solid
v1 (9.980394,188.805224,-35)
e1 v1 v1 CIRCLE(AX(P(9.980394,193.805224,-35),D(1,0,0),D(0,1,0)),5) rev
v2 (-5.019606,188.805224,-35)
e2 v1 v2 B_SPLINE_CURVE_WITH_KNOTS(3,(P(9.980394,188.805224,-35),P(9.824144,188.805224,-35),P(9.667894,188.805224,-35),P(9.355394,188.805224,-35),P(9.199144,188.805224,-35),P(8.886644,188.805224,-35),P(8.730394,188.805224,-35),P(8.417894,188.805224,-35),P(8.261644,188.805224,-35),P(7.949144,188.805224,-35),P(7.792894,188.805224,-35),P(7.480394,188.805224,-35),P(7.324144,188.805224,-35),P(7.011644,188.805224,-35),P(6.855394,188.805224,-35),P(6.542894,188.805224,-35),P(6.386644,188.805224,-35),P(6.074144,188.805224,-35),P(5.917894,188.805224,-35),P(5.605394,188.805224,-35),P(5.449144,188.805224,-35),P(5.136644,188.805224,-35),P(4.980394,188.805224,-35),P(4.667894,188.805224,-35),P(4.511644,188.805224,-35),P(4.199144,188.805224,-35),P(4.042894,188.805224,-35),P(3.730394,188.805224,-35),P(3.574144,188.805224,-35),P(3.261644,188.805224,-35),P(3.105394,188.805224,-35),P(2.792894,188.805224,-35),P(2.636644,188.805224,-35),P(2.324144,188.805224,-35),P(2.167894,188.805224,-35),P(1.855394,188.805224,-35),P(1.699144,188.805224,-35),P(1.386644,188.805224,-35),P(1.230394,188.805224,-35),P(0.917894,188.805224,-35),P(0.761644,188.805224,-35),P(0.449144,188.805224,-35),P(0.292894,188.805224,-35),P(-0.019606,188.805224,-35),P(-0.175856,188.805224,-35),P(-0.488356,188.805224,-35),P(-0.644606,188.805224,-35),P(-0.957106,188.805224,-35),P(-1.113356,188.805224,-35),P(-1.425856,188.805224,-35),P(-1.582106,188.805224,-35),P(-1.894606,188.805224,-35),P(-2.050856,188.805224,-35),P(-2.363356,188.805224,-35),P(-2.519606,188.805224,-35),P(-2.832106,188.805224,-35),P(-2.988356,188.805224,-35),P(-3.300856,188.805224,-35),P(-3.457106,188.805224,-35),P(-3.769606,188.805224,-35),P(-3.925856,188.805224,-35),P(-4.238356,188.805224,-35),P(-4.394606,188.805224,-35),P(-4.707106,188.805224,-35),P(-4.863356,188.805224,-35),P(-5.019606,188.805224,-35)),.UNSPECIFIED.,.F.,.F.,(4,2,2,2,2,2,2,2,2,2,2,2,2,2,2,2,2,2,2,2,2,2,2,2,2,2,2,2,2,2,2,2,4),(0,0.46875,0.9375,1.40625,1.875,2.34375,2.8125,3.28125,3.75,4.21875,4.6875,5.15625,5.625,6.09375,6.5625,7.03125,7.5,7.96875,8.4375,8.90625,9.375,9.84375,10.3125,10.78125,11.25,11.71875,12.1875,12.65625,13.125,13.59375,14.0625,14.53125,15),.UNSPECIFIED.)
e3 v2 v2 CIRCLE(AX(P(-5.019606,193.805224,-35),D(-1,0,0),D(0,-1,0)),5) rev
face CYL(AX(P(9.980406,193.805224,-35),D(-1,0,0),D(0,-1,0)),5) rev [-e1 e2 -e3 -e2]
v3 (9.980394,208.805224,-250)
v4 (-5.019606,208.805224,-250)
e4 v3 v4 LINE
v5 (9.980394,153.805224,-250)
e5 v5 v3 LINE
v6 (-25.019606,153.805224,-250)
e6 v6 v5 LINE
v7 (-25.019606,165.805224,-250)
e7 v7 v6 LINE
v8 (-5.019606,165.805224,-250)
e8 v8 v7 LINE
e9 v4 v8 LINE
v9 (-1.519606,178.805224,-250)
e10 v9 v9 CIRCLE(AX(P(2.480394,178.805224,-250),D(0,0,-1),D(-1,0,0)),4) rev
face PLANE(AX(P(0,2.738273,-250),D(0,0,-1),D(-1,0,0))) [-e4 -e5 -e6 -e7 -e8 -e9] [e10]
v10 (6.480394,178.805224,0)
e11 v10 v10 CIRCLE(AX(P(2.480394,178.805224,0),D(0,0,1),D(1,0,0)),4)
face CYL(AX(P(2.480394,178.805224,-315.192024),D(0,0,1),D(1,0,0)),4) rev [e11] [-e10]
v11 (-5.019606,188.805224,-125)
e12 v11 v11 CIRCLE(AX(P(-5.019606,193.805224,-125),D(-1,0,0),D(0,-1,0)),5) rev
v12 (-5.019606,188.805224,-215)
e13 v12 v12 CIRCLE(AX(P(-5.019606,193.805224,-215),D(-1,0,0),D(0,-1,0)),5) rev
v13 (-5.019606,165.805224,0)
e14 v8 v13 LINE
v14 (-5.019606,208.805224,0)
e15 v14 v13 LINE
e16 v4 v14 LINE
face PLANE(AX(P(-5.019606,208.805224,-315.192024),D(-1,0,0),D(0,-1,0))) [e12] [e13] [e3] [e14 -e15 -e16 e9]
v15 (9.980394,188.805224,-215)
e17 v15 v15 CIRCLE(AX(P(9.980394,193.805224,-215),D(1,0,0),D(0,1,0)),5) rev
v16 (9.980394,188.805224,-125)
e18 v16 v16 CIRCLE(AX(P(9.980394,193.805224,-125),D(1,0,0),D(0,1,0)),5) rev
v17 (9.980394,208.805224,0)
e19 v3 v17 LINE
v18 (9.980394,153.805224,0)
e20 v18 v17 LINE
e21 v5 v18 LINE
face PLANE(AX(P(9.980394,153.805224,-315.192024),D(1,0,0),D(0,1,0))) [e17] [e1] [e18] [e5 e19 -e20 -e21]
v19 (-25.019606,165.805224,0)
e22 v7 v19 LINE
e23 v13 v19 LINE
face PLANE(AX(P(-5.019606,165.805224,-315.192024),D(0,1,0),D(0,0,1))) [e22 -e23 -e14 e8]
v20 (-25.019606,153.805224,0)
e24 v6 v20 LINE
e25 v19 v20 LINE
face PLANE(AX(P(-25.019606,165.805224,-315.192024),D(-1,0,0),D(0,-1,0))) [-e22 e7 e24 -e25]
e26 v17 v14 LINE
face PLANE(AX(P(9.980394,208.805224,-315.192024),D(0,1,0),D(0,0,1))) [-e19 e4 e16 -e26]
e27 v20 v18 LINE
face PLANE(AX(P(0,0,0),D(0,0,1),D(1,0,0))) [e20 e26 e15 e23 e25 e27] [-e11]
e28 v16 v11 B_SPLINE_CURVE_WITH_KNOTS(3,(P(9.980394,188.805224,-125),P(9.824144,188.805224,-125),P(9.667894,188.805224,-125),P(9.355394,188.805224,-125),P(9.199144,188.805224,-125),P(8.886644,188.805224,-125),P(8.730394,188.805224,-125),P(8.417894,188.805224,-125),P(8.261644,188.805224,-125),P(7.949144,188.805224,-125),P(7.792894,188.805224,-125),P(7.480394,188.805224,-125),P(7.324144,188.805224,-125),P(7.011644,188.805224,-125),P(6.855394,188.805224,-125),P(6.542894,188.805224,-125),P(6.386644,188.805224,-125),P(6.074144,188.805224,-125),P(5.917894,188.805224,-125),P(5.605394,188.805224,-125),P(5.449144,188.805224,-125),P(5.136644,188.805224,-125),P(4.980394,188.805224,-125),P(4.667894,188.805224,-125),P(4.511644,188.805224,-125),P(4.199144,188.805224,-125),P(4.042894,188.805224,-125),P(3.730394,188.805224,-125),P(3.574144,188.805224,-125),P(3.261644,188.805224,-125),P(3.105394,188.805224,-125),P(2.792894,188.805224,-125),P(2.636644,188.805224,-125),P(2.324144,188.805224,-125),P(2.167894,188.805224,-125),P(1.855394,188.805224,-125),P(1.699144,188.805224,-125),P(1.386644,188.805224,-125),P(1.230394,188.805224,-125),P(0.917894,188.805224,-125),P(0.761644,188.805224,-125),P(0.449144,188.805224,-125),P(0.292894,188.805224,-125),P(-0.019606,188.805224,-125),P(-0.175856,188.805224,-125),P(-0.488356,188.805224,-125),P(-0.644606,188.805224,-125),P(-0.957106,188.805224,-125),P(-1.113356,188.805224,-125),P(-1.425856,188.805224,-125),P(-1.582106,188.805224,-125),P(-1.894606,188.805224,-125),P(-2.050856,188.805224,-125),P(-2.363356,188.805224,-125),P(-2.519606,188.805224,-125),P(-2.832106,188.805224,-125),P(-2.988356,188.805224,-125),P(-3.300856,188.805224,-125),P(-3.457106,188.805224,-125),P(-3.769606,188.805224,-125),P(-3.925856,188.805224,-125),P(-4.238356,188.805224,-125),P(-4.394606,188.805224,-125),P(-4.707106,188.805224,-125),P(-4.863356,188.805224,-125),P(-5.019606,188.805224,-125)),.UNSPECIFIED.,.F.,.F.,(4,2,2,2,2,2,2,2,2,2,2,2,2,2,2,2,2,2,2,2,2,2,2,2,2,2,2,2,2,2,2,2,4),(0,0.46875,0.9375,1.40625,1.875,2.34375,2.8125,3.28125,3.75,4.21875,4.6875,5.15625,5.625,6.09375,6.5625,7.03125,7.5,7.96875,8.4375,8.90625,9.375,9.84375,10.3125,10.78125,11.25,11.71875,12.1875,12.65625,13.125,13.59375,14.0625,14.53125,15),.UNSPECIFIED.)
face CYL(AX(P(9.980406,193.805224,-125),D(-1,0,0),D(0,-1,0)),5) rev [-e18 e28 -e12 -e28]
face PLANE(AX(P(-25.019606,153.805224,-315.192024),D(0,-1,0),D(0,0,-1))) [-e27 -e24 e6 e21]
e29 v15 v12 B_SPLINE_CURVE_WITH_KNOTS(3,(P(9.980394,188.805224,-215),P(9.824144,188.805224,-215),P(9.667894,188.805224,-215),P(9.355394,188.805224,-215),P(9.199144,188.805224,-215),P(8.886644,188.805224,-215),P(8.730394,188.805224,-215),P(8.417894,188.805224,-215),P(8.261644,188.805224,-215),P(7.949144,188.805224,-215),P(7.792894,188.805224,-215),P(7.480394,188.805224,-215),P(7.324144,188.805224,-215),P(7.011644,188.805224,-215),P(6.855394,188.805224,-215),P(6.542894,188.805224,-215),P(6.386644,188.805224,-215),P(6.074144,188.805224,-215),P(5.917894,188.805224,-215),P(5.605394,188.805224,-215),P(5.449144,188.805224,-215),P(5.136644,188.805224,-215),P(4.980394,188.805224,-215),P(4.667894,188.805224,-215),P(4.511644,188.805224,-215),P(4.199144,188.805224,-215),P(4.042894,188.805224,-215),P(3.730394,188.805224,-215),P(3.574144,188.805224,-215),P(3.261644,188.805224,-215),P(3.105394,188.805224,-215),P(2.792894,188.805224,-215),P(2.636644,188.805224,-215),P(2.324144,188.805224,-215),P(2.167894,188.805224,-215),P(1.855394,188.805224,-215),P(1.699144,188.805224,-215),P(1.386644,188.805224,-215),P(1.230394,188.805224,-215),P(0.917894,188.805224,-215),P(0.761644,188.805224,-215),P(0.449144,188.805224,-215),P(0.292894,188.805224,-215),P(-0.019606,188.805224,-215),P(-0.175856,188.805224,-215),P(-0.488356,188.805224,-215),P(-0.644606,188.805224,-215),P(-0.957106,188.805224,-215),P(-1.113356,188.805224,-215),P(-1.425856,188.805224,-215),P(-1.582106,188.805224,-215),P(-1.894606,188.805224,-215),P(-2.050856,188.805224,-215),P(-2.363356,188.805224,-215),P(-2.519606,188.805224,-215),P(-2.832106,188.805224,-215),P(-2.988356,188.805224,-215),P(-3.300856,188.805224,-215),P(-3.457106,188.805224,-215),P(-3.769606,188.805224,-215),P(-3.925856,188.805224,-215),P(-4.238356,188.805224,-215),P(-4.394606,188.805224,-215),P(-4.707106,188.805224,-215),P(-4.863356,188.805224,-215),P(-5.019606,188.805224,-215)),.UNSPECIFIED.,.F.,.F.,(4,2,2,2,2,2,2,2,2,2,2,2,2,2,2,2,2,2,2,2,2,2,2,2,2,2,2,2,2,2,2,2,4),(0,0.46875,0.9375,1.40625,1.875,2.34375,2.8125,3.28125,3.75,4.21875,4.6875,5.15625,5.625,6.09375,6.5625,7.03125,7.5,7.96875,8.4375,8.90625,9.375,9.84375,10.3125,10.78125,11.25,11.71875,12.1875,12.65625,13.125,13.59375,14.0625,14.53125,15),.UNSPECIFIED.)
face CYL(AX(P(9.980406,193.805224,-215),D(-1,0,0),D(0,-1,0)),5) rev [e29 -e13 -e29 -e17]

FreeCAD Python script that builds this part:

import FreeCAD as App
import Part
import Sketcher
from FreeCAD import Vector
Q = App.Units.Quantity

doc = App.newDocument("Part")
body = doc.addObject("PartDesign::Body", "Body")

# Sketch on XY plane
sketch1 = body.newObject("Sketcher::SketchObject", "Sketch")
sketch1.AttachmentSupport = (doc.getObject("XY_Plane"), [""])
sketch1.MapMode = "FlatFace"
sketch1.addGeometry(Part.LineSegment(Vector(-5.019606, 208.805224, 0), Vector(-5.019606, 165.805224, 0)), False)
sketch1.addGeometry(Part.LineSegment(Vector(-5.019606, 165.805224, 0), Vector(-25.019606, 165.805224, 0)), False)
sketch1.addGeometry(Part.LineSegment(Vector(-25.019606, 165.805224, 0), Vector(-25.019606, 153.805224, 0)), False)
sketch1.addGeometry(Part.LineSegment(Vector(-25.019606, 153.805224, 0), Vector(9.980394, 153.805224, 0)), False)
sketch1.addGeometry(Part.LineSegment(Vector(9.980394, 153.805224, 0), Vector(9.980394, 208.805224, 0)), False)
sketch1.addGeometry(Part.LineSegment(Vector(9.980394, 208.805224, 0), Vector(-5.019606, 208.805224, 0)), False)
sketch1.addGeometry(Part.Circle(Vector(2.480394, 178.805224, 0), Vector(0, 0, 1), 4), False)
sketch1.addConstraint(Sketcher.Constraint("Coincident", 0, 2, 1, 1))
sketch1.addConstraint(Sketcher.Constraint("Coincident", 1, 2, 2, 1))
sketch1.addConstraint(Sketcher.Constraint("Coincident", 2, 2, 3, 1))
sketch1.addConstraint(Sketcher.Constraint("Coincident", 3, 2, 4, 1))
sketch1.addConstraint(Sketcher.Constraint("Coincident", 4, 2, 5, 1))
sketch1.addConstraint(Sketcher.Constraint("Coincident", 5, 2, 0, 1))
sketch1.addConstraint(Sketcher.Constraint("Vertical", 0))
sketch1.addConstraint(Sketcher.Constraint("Horizontal", 1))
sketch1.addConstraint(Sketcher.Constraint("Vertical", 2))
sketch1.addConstraint(Sketcher.Constraint("Horizontal", 3))
sketch1.addConstraint(Sketcher.Constraint("Vertical", 4))
sketch1.addConstraint(Sketcher.Constraint("Horizontal", 5))
sketch1.addConstraint(Sketcher.Constraint("Diameter", 6, Q("8 mm")))
sketch1.addConstraint(Sketcher.Constraint("DistanceX", 1, 2, 1, 1, Q("20 mm")))
sketch1.addConstraint(Sketcher.Constraint("DistanceX", 3, 1, 3, 2, Q("35 mm")))
sketch1.addConstraint(Sketcher.Constraint("DistanceY", 0, 2, 0, 1, Q("43 mm")))
sketch1.addConstraint(Sketcher.Constraint("DistanceY", 2, 2, 2, 1, Q("12 mm")))
sketch1.addConstraint(Sketcher.Constraint("DistanceY", 0, 2, 6, 3, Q("13 mm")))
sketch1.addConstraint(Sketcher.Constraint("DistanceX", 0, 2, 6, 3, Q("7.5 mm")))
sketch1.addConstraint(Sketcher.Constraint("DistanceX", -1, 1, 6, 3, Q("2.480394 mm")))
sketch1.addConstraint(Sketcher.Constraint("DistanceY", -1, 1, 6, 3, Q("178.805224 mm")))
pad1 = body.newObject("PartDesign::Pad", "Pad")
pad1.Profile = sketch1
pad1.Length = 250
pad1.Reversed = True

# Sketch on YZ plane
sketch2 = body.newObject("Sketcher::SketchObject", "Sketch001")
sketch2.AttachmentSupport = (doc.getObject("YZ_Plane"), [""])
sketch2.MapMode = "FlatFace"
sketch2.AttachmentOffset = App.Placement(Vector(0, 0, 9.980394), App.Rotation())
sketch2.addGeometry(Part.Circle(Vector(193.805224, -35, 0), Vector(0, 0, 1), 5), False)
sketch2.addConstraint(Sketcher.Constraint("Diameter", 0, Q("10 mm")))
sketch2.addConstraint(Sketcher.Constraint("DistanceY", 0, 3, -1, 1, Q("35 mm")))
sketch2.addConstraint(Sketcher.Constraint("DistanceX", -1, 1, 0, 3, Q("193.805224 mm")))
pocket1 = body.newObject("PartDesign::Pocket", "Pocket")
pocket1.Profile = sketch2
pocket1.Type = "UpToFirst"

# Sketch on YZ plane
sketch3 = body.newObject("Sketcher::SketchObject", "Sketch002")
sketch3.AttachmentSupport = (doc.getObject("YZ_Plane"), [""])
sketch3.MapMode = "FlatFace"
sketch3.AttachmentOffset = App.Placement(Vector(0, 0, 9.980394), App.Rotation())
sketch3.addGeometry(Part.Circle(Vector(193.805224, -125, 0), Vector(0, 0, 1), 5), False)
sketch3.addConstraint(Sketcher.Constraint("Diameter", 0, Q("10 mm")))
sketch3.addConstraint(Sketcher.Constraint("DistanceY", 0, 3, -1, 1, Q("125 mm")))
sketch3.addConstraint(Sketcher.Constraint("DistanceX", -1, 1, 0, 3, Q("193.805224 mm")))
pocket2 = body.newObject("PartDesign::Pocket", "Pocket001")
pocket2.Profile = sketch3
pocket2.Type = "UpToFirst"

# Sketch on YZ plane
sketch4 = body.newObject("Sketcher::SketchObject", "Sketch003")
sketch4.AttachmentSupport = (doc.getObject("YZ_Plane"), [""])
sketch4.MapMode = "FlatFace"
sketch4.AttachmentOffset = App.Placement(Vector(0, 0, 9.980394), App.Rotation())
sketch4.addGeometry(Part.Circle(Vector(193.805224, -215, 0), Vector(0, 0, 1), 5), False)
sketch4.addConstraint(Sketcher.Constraint("Diameter", 0, Q("10 mm")))
sketch4.addConstraint(Sketcher.Constraint("DistanceY", 0, 3, -1, 1, Q("215 mm")))
sketch4.addConstraint(Sketcher.Constraint("DistanceX", -1, 1, 0, 3, Q("193.805224 mm")))
pocket3 = body.newObject("PartDesign::Pocket", "Pocket002")
pocket3.Profile = sketch4
pocket3.Type = "UpToFirst"

# Sketch on YZ plane
sketch5 = body.newObject("Sketcher::SketchObject", "Sketch004")
sketch5.AttachmentSupport = (doc.getObject("YZ_Plane"), [""])
sketch5.MapMode = "FlatFace"
sketch5.AttachmentOffset = App.Placement(Vector(0, 0, 9.980394), App.Rotation())
sketch5.addGeometry(Part.Circle(Vector(193.805224, -35, 0), Vector(0, 0, 1), 5), False)
sketch5.addGeometry(Part.Circle(Vector(193.805224, -125, 0), Vector(0, 0, 1), 5), False)
sketch5.addGeometry(Part.Circle(Vector(193.805224, -215, 0), Vector(0, 0, 1), 5), False)
sketch5.addConstraint(Sketcher.Constraint("Equal", 0, 1))
sketch5.addConstraint(Sketcher.Constraint("Equal", 1, 2))
sketch5.addConstraint(Sketcher.Constraint("Vertical", 0, 3, 1, 3))
sketch5.addConstraint(Sketcher.Constraint("Vertical", 1, 3, 2, 3))
sketch5.addConstraint(Sketcher.Constraint("Diameter", 0, Q("10 mm")))
sketch5.addConstraint(Sketcher.Constraint("DistanceY", 0, 3, -1, 1, Q("35 mm")))
sketch5.addConstraint(Sketcher.Constraint("DistanceY", 1, 3, -1, 1, Q("125 mm")))
sketch5.addConstraint(Sketcher.Constraint("DistanceY", 2, 3, -1, 1, Q("215 mm")))
sketch5.addConstraint(Sketcher.Constraint("DistanceX", -1, 1, 0, 3, Q("193.805224 mm")))
pocket4 = body.newObject("PartDesign::Pocket", "Pocket003")
pocket4.Profile = sketch5
pocket4.Length = 328.604367
pocket4.Reversed = True

doc.recompute()
